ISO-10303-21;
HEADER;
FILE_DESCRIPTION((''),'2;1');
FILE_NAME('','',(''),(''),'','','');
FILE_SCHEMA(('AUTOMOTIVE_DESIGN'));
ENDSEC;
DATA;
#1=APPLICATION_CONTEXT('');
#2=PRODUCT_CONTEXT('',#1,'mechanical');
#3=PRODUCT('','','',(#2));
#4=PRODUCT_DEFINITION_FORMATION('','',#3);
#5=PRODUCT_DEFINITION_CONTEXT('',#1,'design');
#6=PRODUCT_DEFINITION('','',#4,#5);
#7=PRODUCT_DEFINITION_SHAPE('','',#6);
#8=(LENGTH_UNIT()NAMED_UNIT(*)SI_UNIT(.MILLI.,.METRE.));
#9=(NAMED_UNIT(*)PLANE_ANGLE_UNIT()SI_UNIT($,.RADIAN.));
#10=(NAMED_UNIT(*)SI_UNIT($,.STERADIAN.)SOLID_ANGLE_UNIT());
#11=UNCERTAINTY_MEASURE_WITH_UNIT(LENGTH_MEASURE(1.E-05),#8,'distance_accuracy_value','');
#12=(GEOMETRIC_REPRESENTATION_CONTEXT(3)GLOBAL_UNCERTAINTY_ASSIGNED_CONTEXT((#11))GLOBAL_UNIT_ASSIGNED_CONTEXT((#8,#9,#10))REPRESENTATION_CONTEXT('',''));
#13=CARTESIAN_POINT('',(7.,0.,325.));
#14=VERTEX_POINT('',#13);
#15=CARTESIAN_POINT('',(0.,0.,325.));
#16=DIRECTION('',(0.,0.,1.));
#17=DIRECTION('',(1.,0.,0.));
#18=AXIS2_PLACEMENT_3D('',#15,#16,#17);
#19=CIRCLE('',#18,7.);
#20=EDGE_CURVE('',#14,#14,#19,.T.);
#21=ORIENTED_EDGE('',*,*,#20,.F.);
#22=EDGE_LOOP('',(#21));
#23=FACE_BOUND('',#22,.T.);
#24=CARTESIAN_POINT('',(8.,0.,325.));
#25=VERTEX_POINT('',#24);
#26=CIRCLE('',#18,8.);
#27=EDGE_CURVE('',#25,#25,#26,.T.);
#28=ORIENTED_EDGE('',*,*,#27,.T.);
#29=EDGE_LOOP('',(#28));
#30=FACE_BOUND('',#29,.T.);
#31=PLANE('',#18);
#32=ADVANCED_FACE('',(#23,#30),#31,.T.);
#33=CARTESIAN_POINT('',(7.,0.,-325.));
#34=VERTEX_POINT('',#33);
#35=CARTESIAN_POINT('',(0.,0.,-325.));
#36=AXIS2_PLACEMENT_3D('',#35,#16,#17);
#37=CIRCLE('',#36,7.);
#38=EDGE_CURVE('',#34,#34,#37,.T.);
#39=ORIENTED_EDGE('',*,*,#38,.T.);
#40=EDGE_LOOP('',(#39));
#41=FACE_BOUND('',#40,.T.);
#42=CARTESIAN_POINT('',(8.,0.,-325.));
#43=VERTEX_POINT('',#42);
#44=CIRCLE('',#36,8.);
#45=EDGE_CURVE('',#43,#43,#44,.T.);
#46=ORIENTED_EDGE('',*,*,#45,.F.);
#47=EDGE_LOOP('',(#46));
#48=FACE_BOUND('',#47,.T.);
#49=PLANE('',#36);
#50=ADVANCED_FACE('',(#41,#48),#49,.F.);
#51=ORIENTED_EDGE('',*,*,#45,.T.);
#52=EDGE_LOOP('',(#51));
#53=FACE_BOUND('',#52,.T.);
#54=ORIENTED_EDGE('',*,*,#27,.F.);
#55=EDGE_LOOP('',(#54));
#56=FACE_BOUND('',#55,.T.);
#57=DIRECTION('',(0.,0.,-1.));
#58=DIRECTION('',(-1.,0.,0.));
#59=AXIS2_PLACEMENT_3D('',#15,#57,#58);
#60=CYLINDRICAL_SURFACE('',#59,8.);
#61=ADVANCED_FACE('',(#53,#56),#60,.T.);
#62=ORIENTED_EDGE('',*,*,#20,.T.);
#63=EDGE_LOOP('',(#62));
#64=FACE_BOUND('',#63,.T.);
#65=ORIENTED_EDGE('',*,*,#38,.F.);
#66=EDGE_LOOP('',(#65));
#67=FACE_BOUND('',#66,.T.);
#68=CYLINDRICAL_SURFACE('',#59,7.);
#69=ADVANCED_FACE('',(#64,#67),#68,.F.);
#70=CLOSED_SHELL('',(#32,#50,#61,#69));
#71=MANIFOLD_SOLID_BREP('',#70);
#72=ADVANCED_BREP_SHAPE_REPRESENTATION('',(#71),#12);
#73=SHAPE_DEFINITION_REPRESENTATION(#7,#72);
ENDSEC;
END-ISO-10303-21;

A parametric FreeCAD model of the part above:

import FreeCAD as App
import Part
import Sketcher

V = App.Vector
Q = App.Units.Quantity

doc = App.newDocument("Part")
body = doc.addObject("PartDesign::Body", "Body")

# Sketch on XY plane
sketch1 = body.newObject("Sketcher::SketchObject", "Sketch")
sketch1.AttachmentSupport = (doc.getObject("XY_Plane"), [""])
sketch1.MapMode = "FlatFace"
sketch1.addGeometry([
    Part.Circle(V(0, 0, 0), V(0, 0, 1), 8),
    Part.Circle(V(0, 0, 0), V(0, 0, 1), 7),
], False)
sketch1.addConstraint([
    Sketcher.Constraint("Coincident", 0, 3, -1, 1),
    Sketcher.Constraint("Coincident", 1, 3, -1, 1),
    Sketcher.Constraint("Diameter", 0, Q("16 mm")),
    Sketcher.Constraint("Diameter", 1, Q("14 mm")),
])
pad1 = body.newObject("PartDesign::Pad", "Pad")
pad1.Profile = sketch1
pad1.Length = 650
pad1.Midplane = True

doc.recompute()
